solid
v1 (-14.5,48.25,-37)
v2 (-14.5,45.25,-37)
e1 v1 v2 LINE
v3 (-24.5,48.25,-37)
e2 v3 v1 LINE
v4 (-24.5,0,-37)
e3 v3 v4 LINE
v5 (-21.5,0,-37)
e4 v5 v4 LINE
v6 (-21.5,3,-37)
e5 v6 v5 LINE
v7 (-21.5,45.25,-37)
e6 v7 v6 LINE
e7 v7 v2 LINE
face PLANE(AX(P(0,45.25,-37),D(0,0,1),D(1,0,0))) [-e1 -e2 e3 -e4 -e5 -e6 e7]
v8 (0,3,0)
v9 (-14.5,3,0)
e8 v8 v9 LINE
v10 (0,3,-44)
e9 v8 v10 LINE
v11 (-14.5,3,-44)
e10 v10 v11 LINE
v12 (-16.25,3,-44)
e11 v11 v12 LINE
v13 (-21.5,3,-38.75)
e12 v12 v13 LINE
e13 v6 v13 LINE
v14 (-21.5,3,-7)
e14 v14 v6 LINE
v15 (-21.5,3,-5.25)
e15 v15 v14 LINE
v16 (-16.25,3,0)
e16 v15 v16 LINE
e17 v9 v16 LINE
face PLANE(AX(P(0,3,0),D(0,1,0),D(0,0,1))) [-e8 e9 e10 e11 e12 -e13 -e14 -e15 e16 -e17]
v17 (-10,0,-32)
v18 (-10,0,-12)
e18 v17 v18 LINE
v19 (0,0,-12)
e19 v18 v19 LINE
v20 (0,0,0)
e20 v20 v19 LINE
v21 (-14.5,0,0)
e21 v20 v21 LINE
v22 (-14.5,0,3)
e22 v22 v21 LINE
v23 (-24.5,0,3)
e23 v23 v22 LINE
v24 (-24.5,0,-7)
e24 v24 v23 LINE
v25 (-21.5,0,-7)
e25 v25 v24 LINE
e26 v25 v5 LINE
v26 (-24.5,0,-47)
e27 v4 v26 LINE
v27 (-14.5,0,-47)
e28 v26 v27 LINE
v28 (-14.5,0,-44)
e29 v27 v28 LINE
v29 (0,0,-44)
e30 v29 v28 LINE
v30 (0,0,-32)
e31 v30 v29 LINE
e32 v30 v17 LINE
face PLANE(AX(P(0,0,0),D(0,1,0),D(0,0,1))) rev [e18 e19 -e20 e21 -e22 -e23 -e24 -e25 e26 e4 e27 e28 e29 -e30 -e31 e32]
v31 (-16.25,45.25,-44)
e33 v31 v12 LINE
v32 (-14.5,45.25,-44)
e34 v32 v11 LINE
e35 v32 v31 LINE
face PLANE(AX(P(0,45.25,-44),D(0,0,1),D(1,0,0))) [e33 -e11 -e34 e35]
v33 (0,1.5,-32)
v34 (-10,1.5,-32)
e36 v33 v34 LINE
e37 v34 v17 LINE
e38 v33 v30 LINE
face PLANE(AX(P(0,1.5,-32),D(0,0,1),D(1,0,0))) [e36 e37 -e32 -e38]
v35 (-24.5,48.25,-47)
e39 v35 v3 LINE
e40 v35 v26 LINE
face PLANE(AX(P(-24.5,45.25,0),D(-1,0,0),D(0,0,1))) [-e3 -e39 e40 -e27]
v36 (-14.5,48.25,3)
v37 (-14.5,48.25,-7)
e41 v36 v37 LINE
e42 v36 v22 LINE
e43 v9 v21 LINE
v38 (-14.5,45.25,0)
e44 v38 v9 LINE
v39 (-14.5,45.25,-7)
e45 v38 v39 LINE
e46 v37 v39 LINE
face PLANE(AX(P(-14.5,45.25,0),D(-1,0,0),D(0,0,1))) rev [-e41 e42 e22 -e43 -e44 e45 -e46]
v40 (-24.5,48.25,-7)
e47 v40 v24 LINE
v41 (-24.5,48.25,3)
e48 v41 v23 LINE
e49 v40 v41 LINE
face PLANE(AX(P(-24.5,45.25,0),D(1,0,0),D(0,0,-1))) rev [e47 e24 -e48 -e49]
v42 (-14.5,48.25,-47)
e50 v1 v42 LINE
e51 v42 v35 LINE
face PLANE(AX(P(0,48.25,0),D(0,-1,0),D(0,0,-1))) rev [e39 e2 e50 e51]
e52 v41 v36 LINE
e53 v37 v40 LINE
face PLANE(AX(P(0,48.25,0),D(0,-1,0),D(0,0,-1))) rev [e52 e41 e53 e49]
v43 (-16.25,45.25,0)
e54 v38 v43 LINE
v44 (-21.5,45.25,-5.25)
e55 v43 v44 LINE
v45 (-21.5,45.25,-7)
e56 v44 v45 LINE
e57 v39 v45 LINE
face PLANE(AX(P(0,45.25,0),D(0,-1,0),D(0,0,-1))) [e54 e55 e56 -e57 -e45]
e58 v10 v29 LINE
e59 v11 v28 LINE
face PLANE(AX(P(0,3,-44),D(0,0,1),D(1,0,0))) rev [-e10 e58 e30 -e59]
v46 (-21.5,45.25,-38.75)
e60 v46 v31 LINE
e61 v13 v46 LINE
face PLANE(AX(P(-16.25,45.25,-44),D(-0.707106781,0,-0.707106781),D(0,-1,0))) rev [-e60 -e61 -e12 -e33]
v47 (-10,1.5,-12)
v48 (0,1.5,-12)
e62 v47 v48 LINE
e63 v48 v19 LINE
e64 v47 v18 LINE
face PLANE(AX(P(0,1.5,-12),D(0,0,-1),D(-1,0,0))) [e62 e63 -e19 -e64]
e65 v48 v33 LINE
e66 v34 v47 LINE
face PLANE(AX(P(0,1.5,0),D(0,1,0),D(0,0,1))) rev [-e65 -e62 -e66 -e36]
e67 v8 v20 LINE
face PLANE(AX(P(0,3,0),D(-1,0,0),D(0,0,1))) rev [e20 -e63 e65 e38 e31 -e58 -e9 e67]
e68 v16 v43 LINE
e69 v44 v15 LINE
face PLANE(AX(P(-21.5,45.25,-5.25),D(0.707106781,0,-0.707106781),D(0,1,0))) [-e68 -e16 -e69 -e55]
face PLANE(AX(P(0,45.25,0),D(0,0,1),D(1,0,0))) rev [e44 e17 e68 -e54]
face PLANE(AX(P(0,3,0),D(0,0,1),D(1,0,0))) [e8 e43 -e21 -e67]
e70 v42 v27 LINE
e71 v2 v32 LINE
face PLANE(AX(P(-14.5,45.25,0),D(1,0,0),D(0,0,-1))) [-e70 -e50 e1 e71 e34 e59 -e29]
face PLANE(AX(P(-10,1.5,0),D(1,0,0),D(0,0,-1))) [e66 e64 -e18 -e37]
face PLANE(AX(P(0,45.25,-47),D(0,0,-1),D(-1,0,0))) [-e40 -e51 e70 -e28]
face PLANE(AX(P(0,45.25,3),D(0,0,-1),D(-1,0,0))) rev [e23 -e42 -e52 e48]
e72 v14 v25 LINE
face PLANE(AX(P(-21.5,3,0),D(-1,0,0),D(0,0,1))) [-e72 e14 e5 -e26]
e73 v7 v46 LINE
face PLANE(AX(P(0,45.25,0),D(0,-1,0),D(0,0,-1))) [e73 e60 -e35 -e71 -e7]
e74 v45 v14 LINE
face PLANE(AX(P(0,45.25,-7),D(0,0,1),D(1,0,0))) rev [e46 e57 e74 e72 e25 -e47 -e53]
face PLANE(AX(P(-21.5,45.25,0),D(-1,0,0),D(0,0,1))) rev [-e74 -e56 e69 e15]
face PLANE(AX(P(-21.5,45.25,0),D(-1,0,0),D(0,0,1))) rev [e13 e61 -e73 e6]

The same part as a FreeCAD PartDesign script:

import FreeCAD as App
import Part
import Sketcher
from FreeCAD import Vector


def edges_at(feature, points):
    """Names of the edges that pass closest to the given points."""
    edges = feature.Shape.Edges
    near = lambda p: min(range(len(edges)), key=lambda i: edges[i].distToShape(Part.Vertex(*p))[0])
    return sorted({f"Edge{near(p) + 1}" for p in points})

doc = App.newDocument("Part")
body = doc.addObject("PartDesign::Body", "Body")

# Sketch on XZ plane
sketch1 = doc.addObject("Sketcher::SketchObject", "Sketch")
body.addObject(sketch1)
sketch1.AttachmentSupport = (doc.XZ_Plane, [""])
sketch1.MapMode = "FlatFace"
sketch1.addGeometry([
    Part.LineSegment(Vector(-21.5, -44, 0), Vector(-21.5, 0, 0)),
    Part.LineSegment(Vector(-21.5, 0, 0), Vector(0, 0, 0)),
    Part.LineSegment(Vector(0, 0, 0), Vector(0, -44, 0)),
    Part.LineSegment(Vector(0, -44, 0), Vector(-21.5, -44, 0)),
], False)
sketch1.addConstraint([
    Sketcher.Constraint("Coincident", 0, 2, 1, 1),
    Sketcher.Constraint("Coincident", 1, 2, 2, 1),
    Sketcher.Constraint("Coincident", 2, 2, 3, 1),
    Sketcher.Constraint("Coincident", 3, 2, 0, 1),
    Sketcher.Constraint("Vertical", 0),
    Sketcher.Constraint("Horizontal", 1),
    Sketcher.Constraint("Vertical", 2),
    Sketcher.Constraint("Horizontal", 3),
    Sketcher.Constraint("Coincident", 1, 2, -1, 1),
    Sketcher.Constraint("DistanceY", 0, 1, 0, 2, 44.0),
    Sketcher.Constraint("DistanceX", 1, 1, 1, 2, 21.5),
])
pad1 = doc.addObject("PartDesign::Pad", "Pad")
body.addObject(pad1)
pad1.Profile = sketch1
pad1.Length = 3
pad1.Reversed = True

# Sketch on XZ plane
sketch2 = doc.addObject("Sketcher::SketchObject", "Sketch001")
body.addObject(sketch2)
sketch2.AttachmentSupport = (doc.XZ_Plane, [""])
sketch2.MapMode = "FlatFace"
sketch2.addGeometry([
    Part.LineSegment(Vector(-10, -32, 0), Vector(-10, -12, 0)),
    Part.LineSegment(Vector(-10, -12, 0), Vector(0, -12, 0)),
    Part.LineSegment(Vector(0, -12, 0), Vector(0, -32, 0)),
    Part.LineSegment(Vector(0, -32, 0), Vector(-10, -32, 0)),
], False)
sketch2.addConstraint([
    Sketcher.Constraint("Coincident", 0, 2, 1, 1),
    Sketcher.Constraint("Coincident", 1, 2, 2, 1),
    Sketcher.Constraint("Coincident", 2, 2, 3, 1),
    Sketcher.Constraint("Coincident", 3, 2, 0, 1),
    Sketcher.Constraint("Vertical", 0),
    Sketcher.Constraint("Horizontal", 1),
    Sketcher.Constraint("Vertical", 2),
    Sketcher.Constraint("Horizontal", 3),
    Sketcher.Constraint("PointOnObject", 1, 2, -2),
    Sketcher.Constraint("DistanceX", 1, 1, 1, 2, 10.0),
    Sketcher.Constraint("DistanceY", 0, 1, 0, 2, 20.0),
    Sketcher.Constraint("DistanceY", 0, 2, -1, 1, 12.0),
])
pocket1 = doc.addObject("PartDesign::Pocket", "Pocket")
body.addObject(pocket1)
pocket1.Profile = sketch2
pocket1.Length = 1.5

# Sketch on XZ plane
sketch3 = doc.addObject("Sketcher::SketchObject", "Sketch002")
body.addObject(sketch3)
sketch3.AttachmentSupport = (doc.XZ_Plane, [""])
sketch3.MapMode = "FlatFace"
sketch3.addGeometry([
    Part.LineSegment(Vector(-21.5, 0, 0), Vector(-21.5, -7, 0)),  # 0
    Part.LineSegment(Vector(-21.5, -7, 0), Vector(-24.5, -7, 0)),  # 1
    Part.LineSegment(Vector(-24.5, -7, 0), Vector(-24.5, 3, 0)),  # 2
    Part.LineSegment(Vector(-24.5, 3, 0), Vector(-14.5, 3, 0)),  # 3
    Part.LineSegment(Vector(-14.5, 3, 0), Vector(-14.5, 0, 0)),  # 4
    Part.LineSegment(Vector(-14.5, 0, 0), Vector(-21.5, 0, 0)),  # 5
    Part.LineSegment(Vector(-24.5, -37, 0), Vector(-21.5, -37, 0)),  # 6
    Part.LineSegment(Vector(-21.5, -37, 0), Vector(-21.5, -44, 0)),  # 7
    Part.LineSegment(Vector(-21.5, -44, 0), Vector(-14.5, -44, 0)),  # 8
    Part.LineSegment(Vector(-14.5, -44, 0), Vector(-14.5, -47, 0)),  # 9
    Part.LineSegment(Vector(-14.5, -47, 0), Vector(-24.5, -47, 0)),  # 10
    Part.LineSegment(Vector(-24.5, -47, 0), Vector(-24.5, -37, 0)),  # 11
], False)
sketch3.addConstraint([
    Sketcher.Constraint("Coincident", 0, 2, 1, 1),
    Sketcher.Constraint("Coincident", 1, 2, 2, 1),
    Sketcher.Constraint("Coincident", 2, 2, 3, 1),
    Sketcher.Constraint("Coincident", 3, 2, 4, 1),
    Sketcher.Constraint("Coincident", 4, 2, 5, 1),
    Sketcher.Constraint("Coincident", 5, 2, 0, 1),
    Sketcher.Constraint("Coincident", 6, 2, 7, 1),
    Sketcher.Constraint("Coincident", 7, 2, 8, 1),
    Sketcher.Constraint("Coincident", 8, 2, 9, 1),
    Sketcher.Constraint("Coincident", 9, 2, 10, 1),
    Sketcher.Constraint("Coincident", 10, 2, 11, 1),
    Sketcher.Constraint("Coincident", 11, 2, 6, 1),
    Sketcher.Constraint("Vertical", 0),
    Sketcher.Constraint("Horizontal", 1),
    Sketcher.Constraint("Vertical", 2),
    Sketcher.Constraint("Horizontal", 3),
    Sketcher.Constraint("Vertical", 4),
    Sketcher.Constraint("Horizontal", 5),
    Sketcher.Constraint("Horizontal", 6),
    Sketcher.Constraint("Vertical", 7),
    Sketcher.Constraint("Horizontal", 8),
    Sketcher.Constraint("Vertical", 9),
    Sketcher.Constraint("Horizontal", 10),
    Sketcher.Constraint("Vertical", 11),
    Sketcher.Constraint("PointOnObject", 4, 2, -1),
    Sketcher.Constraint("Vertical", 5, 2, 6, 2),
    Sketcher.Constraint("Vertical", 4, 2, 8, 2),
    Sketcher.Constraint("Vertical", 2, 2, 10, 2),
    Sketcher.Constraint("Equal", 8, 0),
    Sketcher.Constraint("Equal", 10, 2),
    Sketcher.Constraint("Equal", 0, 7),
    Sketcher.Constraint("Equal", 4, 9),
    Sketcher.Constraint("DistanceX", 1, 2, 1, 1, 3.0),
    Sketcher.Constraint("DistanceX", 3, 1, 3, 2, 10.0),
    Sketcher.Constraint("DistanceY", 6, 2, -1, 1, 37.0),
    Sketcher.Constraint("DistanceX", 0, 2, -1, 1, 21.5),
])
pad2 = doc.addObject("PartDesign::Pad", "Pad001")
body.addObject(pad2)
pad2.Profile = sketch3
pad2.Length = 45.25
pad2.Reversed = True

# Sketch on XZ plane
sketch4 = doc.addObject("Sketcher::SketchObject", "Sketch003")
body.addObject(sketch4)
sketch4.AttachmentSupport = (doc.XZ_Plane, [""])
sketch4.MapMode = "FlatFace"
sketch4.AttachmentOffset = App.Placement(Vector(0, 0, -45.25), App.Rotation())
sketch4.addGeometry([
    Part.LineSegment(Vector(-24.5, -7, 0), Vector(-24.5, 3, 0)),  # 0
    Part.LineSegment(Vector(-24.5, 3, 0), Vector(-14.5, 3, 0)),  # 1
    Part.LineSegment(Vector(-14.5, 3, 0), Vector(-14.5, -7, 0)),  # 2
    Part.LineSegment(Vector(-14.5, -7, 0), Vector(-24.5, -7, 0)),  # 3
    Part.LineSegment(Vector(-24.5, -47, 0), Vector(-24.5, -37, 0)),  # 4
    Part.LineSegment(Vector(-24.5, -37, 0), Vector(-14.5, -37, 0)),  # 5
    Part.LineSegment(Vector(-14.5, -37, 0), Vector(-14.5, -47, 0)),  # 6
    Part.LineSegment(Vector(-14.5, -47, 0), Vector(-24.5, -47, 0)),  # 7
], False)
sketch4.addConstraint([
    Sketcher.Constraint("Coincident", 0, 2, 1, 1),
    Sketcher.Constraint("Coincident", 1, 2, 2, 1),
    Sketcher.Constraint("Coincident", 2, 2, 3, 1),
    Sketcher.Constraint("Coincident", 3, 2, 0, 1),
    Sketcher.Constraint("Coincident", 4, 2, 5, 1),
    Sketcher.Constraint("Coincident", 5, 2, 6, 1),
    Sketcher.Constraint("Coincident", 6, 2, 7, 1),
    Sketcher.Constraint("Coincident", 7, 2, 4, 1),
    Sketcher.Constraint("Vertical", 0),
    Sketcher.Constraint("Horizontal", 1),
    Sketcher.Constraint("Vertical", 2),
    Sketcher.Constraint("Horizontal", 3),
    Sketcher.Constraint("Vertical", 4),
    Sketcher.Constraint("Horizontal", 5),
    Sketcher.Constraint("Vertical", 6),
    Sketcher.Constraint("Horizontal", 7),
    Sketcher.Constraint("Vertical", 3, 2, 4, 2),
    Sketcher.Constraint("Vertical", 2, 2, 5, 2),
    Sketcher.Constraint("Equal", 7, 0),
    Sketcher.Constraint("Equal", 2, 4),
    Sketcher.Constraint("DistanceX", 1, 1, 1, 2, 10.0),
    Sketcher.Constraint("DistanceY", -1, 1, 0, 2, 3.0),
    Sketcher.Constraint("DistanceY", 4, 2, -1, 1, 37.0),
    Sketcher.Constraint("DistanceX", 0, 2, -1, 1, 24.5),
])
pad3 = doc.addObject("PartDesign::Pad", "Pad002")
body.addObject(pad3)
pad3.Profile = sketch4
pad3.Length = 3
pad3.Reversed = True
doc.recompute()

chamfer = doc.addObject("PartDesign::Chamfer", "Chamfer")
body.addObject(chamfer)
chamfer.Base = (pad3, edges_at(pad3, [(-21.5, 24.125, 0), (-21.5, 24.125, -44)]))
chamfer.Size = 5.25

doc.recompute()
